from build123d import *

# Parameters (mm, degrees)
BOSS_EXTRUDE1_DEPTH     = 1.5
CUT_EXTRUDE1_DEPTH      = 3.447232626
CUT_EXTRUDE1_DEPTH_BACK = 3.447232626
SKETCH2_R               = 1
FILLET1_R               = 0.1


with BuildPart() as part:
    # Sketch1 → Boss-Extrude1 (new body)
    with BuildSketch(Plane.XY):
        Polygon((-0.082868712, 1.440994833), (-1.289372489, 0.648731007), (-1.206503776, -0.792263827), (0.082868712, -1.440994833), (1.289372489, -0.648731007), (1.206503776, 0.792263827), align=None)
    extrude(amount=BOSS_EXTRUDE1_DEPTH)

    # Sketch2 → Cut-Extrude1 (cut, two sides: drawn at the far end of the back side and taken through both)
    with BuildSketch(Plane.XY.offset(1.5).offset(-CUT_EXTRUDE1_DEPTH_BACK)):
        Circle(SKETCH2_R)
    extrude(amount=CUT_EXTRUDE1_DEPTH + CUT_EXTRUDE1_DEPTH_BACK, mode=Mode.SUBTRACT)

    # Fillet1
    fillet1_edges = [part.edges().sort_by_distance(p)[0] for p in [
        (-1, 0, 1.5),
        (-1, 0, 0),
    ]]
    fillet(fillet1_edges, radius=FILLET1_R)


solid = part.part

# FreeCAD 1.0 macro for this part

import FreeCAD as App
import Part
import Sketcher

V = App.Vector


def edges_at(feature, points):
    """Names of the edges that pass closest to the given points."""
    edges = feature.Shape.Edges
    near = lambda p: min(range(len(edges)), key=lambda i: edges[i].distToShape(Part.Vertex(*p))[0])
    return sorted({f"Edge{near(p) + 1}" for p in points})

doc = App.newDocument("Part")
body = doc.addObject("PartDesign::Body", "Body")

sketch1 = body.newObject("Sketcher::SketchObject", "Sketch")
sketch1.AttachmentSupport = (doc.getObject("XY_Plane"), [""])
sketch1.MapMode = "FlatFace"
sketch1.addGeometry([
    Part.LineSegment(V(-0.1, 1.4, 0), V(-1.3, 0.6, 0)),
    Part.LineSegment(V(-1.3, 0.6, 0), V(-1.2, -0.8, 0)),
    Part.LineSegment(V(-1.2, -0.8, 0), V(0.1, -1.4, 0)),
    Part.LineSegment(V(0.1, -1.4, 0), V(1.3, -0.6, 0)),
    Part.LineSegment(V(1.3, -0.6, 0), V(1.2, 0.8, 0)),
    Part.LineSegment(V(1.2, 0.8, 0), V(-0.1, 1.4, 0)),
], False)
sketch1.addConstraint([
    Sketcher.Constraint("Coincident", 0, 2, 1, 1),
    Sketcher.Constraint("Coincident", 1, 2, 2, 1),
    Sketcher.Constraint("Coincident", 2, 2, 3, 1),
    Sketcher.Constraint("Coincident", 3, 2, 4, 1),
    Sketcher.Constraint("Coincident", 4, 2, 5, 1),
    Sketcher.Constraint("Coincident", 5, 2, 0, 1),
    Sketcher.Constraint("Symmetric", 0, 2, 3, 2, -1, 1),
    Sketcher.Constraint("Symmetric", 1, 2, 4, 2, -1, 1),
    Sketcher.Constraint("Symmetric", 2, 2, 5, 2, -1, 1),
    Sketcher.Constraint("Equal", 0, 1),
    Sketcher.Constraint("Equal", 1, 2),
    Sketcher.Constraint("DistanceY", -1, 1, 0, 2, 0.648731),
    Sketcher.Constraint("DistanceX", -1, 1, 2, 2, 0.082869),
    Sketcher.Constraint("DistanceX", 0, 2, 1, 2, 0.082869),
    Sketcher.Constraint("DistanceY", 2, 2, 1, 2, 0.648731),
])
pad1 = body.newObject("PartDesign::Pad", "Pad")
pad1.Profile = sketch1
pad1.Length = 1.5

sketch2 = body.newObject("Sketcher::SketchObject", "Sketch001")
sketch2.AttachmentSupport = (doc.getObject("XY_Plane"), [""])
sketch2.MapMode = "FlatFace"
sketch2.AttachmentOffset = App.Placement(V(0, 0, 1.5), App.Rotation())
sketch2.addGeometry(Part.Circle(V(0, 0, 0), V(0, 0, 1), 1), False)
sketch2.addConstraint([
    Sketcher.Constraint("Coincident", 0, 3, -1, 1),
    Sketcher.Constraint("Diameter", 0, 2.0),
])
pocket1 = body.newObject("PartDesign::Pocket", "Pocket")
pocket1.Profile = sketch2
pocket1.Type = "ThroughAll"
pocket1.Midplane = True
doc.recompute()

fillet = body.newObject("PartDesign::Fillet", "Fillet")
fillet.Base = (pocket1, edges_at(pocket1, [(-1, 0, 1.5), (-1, 0, 0)]))
fillet.Radius = 0.1

doc.recompute()
